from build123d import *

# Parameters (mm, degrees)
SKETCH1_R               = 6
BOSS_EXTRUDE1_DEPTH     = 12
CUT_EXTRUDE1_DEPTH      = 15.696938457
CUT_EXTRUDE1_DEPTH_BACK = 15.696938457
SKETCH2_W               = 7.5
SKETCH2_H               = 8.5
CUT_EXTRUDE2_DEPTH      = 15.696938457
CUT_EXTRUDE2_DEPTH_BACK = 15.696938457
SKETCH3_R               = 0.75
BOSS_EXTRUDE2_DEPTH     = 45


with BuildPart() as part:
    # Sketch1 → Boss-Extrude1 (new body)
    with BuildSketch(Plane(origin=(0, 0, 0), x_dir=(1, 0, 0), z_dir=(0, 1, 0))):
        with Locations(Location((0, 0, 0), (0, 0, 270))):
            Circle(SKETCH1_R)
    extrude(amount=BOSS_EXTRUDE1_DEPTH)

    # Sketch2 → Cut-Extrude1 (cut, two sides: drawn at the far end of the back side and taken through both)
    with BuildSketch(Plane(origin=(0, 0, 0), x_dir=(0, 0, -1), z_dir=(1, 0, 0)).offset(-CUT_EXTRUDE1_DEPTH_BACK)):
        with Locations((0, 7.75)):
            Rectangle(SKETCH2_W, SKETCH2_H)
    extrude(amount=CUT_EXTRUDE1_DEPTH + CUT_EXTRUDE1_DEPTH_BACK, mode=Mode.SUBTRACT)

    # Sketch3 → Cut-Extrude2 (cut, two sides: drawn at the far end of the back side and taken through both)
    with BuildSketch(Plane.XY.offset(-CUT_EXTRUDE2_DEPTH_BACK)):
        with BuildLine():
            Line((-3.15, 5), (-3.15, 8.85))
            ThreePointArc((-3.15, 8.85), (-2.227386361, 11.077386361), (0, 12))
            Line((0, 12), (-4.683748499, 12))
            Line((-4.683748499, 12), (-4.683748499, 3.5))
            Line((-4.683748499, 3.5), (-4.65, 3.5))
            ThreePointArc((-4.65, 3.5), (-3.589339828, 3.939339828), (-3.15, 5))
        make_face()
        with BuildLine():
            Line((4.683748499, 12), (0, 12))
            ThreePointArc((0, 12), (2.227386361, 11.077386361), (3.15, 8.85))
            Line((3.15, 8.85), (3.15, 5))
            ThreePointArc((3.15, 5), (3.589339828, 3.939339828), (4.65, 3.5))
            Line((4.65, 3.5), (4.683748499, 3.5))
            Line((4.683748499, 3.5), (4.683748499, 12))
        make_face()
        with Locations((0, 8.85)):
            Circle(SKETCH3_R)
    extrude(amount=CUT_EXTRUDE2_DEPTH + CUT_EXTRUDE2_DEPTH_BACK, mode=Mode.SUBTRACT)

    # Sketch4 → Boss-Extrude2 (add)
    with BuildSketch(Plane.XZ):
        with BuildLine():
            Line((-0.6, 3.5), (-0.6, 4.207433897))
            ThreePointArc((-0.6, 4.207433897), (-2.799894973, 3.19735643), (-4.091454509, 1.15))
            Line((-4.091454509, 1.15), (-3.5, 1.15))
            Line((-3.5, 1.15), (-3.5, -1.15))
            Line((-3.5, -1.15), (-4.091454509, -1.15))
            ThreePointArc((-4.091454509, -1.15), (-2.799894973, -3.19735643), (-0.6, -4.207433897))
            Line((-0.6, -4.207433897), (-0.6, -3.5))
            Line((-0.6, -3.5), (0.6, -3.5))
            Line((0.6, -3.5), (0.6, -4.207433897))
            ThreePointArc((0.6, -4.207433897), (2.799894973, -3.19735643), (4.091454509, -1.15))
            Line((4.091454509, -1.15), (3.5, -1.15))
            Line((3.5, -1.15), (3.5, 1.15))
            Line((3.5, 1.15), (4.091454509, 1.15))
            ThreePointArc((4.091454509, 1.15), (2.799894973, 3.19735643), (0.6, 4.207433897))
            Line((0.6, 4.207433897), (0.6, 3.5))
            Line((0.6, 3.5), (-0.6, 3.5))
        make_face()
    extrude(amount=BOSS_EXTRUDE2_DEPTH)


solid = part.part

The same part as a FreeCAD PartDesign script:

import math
import FreeCAD as App
import Part
import Sketcher

V = App.Vector

doc = App.newDocument("Part")
body = doc.addObject("PartDesign::Body", "Body")

# Sketch on XZ plane
sketch1 = doc.addObject("Sketcher::SketchObject", "Sketch")
body.addObject(sketch1)
sketch1.AttachmentSupport = (doc.XZ_Plane, [""])
sketch1.MapMode = "FlatFace"
sketch1.addGeometry(Part.Circle(V(0, 0, 0), V(0, 0, 1), 6), False)
sketch1.addConstraint([
    Sketcher.Constraint("Coincident", 0, 3, -1, 1),
    Sketcher.Constraint("Diameter", 0, 12.0),
])
pad1 = doc.addObject("PartDesign::Pad", "Pad")
body.addObject(pad1)
pad1.Profile = sketch1
pad1.Length = 12
pad1.Reversed = True

# Sketch on YZ plane
sketch2 = doc.addObject("Sketcher::SketchObject", "Sketch001")
body.addObject(sketch2)
sketch2.AttachmentSupport = (doc.YZ_Plane, [""])
sketch2.MapMode = "FlatFace"
sketch2.addGeometry([
    Part.LineSegment(V(12, 3.75, 0), V(3.5, 3.75, 0)),
    Part.LineSegment(V(3.5, 3.75, 0), V(3.5, -3.75, 0)),
    Part.LineSegment(V(3.5, -3.75, 0), V(12, -3.75, 0)),
    Part.LineSegment(V(12, -3.75, 0), V(12, 3.75, 0)),
], False)
sketch2.addConstraint([
    Sketcher.Constraint("Coincident", 0, 2, 1, 1),
    Sketcher.Constraint("Coincident", 1, 2, 2, 1),
    Sketcher.Constraint("Coincident", 2, 2, 3, 1),
    Sketcher.Constraint("Coincident", 3, 2, 0, 1),
    Sketcher.Constraint("Horizontal", 0),
    Sketcher.Constraint("Vertical", 1),
    Sketcher.Constraint("Horizontal", 2),
    Sketcher.Constraint("Vertical", 3),
    Sketcher.Constraint("DistanceX", 0, 2, 0, 1, 8.5),
    Sketcher.Constraint("DistanceY", 1, 2, 1, 1, 7.5),
    Sketcher.Constraint("DistanceX", -1, 1, 2, 2, 12.0),
    Sketcher.Constraint("DistanceY", -1, 1, 0, 2, 3.75),
])
pocket1 = doc.addObject("PartDesign::Pocket", "Pocket")
body.addObject(pocket1)
pocket1.Profile = sketch2
pocket1.Type = "ThroughAll"
pocket1.Midplane = True

# Sketch on XY plane
sketch3 = doc.addObject("Sketcher::SketchObject", "Sketch002")
body.addObject(sketch3)
sketch3.AttachmentSupport = (doc.XY_Plane, [""])
sketch3.MapMode = "FlatFace"
sketch3.addGeometry([
    Part.LineSegment(V(-3.15, 5, 0), V(-3.15, 8.85, 0)),  # 0
    Part.ArcOfCircle(Part.Circle(V(0, 8.85, 0), V(0, 0, 1), 3.15), math.radians(90), math.radians(180)),  # 1
    Part.LineSegment(V(0, 12, 0), V(-4.683748, 12, 0)),  # 2
    Part.LineSegment(V(-4.683748, 12, 0), V(-4.683748, 3.5, 0)),  # 3
    Part.LineSegment(V(-4.683748, 3.5, 0), V(-4.65, 3.5, 0)),  # 4
    Part.ArcOfCircle(Part.Circle(V(-4.65, 5, 0), V(0, 0, 1), 1.5), math.radians(-90), math.radians(0)),  # 5
    Part.LineSegment(V(4.683748, 12, 0), V(0, 12, 0)),  # 6
    Part.ArcOfCircle(Part.Circle(V(0, 8.85, 0), V(0, 0, 1), 3.15), math.radians(0), math.radians(90)),  # 7
    Part.LineSegment(V(3.15, 8.85, 0), V(3.15, 5, 0)),  # 8
    Part.ArcOfCircle(Part.Circle(V(4.65, 5, 0), V(0, 0, 1), 1.5), math.radians(180), math.radians(270)),  # 9
    Part.LineSegment(V(4.65, 3.5, 0), V(4.683748, 3.5, 0)),  # 10
    Part.LineSegment(V(4.683748, 3.5, 0), V(4.683748, 12, 0)),  # 11
    Part.Circle(V(0, 8.85, 0), V(0, 0, 1), 0.75),  # 12
], False)
sketch3.addConstraint([
    Sketcher.Constraint("Tangent", 0, 2, 1, 2),
    Sketcher.Constraint("Tangent", 1, 1, 2, 1),
    Sketcher.Constraint("Coincident", 2, 2, 3, 1),
    Sketcher.Constraint("Coincident", 3, 2, 4, 1),
    Sketcher.Constraint("Tangent", 4, 2, 5, 1),
    Sketcher.Constraint("Tangent", 5, 2, 0, 1),
    Sketcher.Constraint("Tangent", 6, 2, 7, 2),
    Sketcher.Constraint("Tangent", 7, 1, 8, 1),
    Sketcher.Constraint("Tangent", 8, 2, 9, 1),
    Sketcher.Constraint("Tangent", 9, 2, 10, 1),
    Sketcher.Constraint("Coincident", 10, 2, 11, 1),
    Sketcher.Constraint("Coincident", 11, 2, 6, 1),
    Sketcher.Constraint("Vertical", 0),
    Sketcher.Constraint("Horizontal", 2),
    Sketcher.Constraint("Vertical", 3),
    Sketcher.Constraint("Horizontal", 4),
    Sketcher.Constraint("Horizontal", 6),
    Sketcher.Constraint("Vertical", 8),
    Sketcher.Constraint("Horizontal", 10),
    Sketcher.Constraint("Vertical", 11),
    Sketcher.Constraint("Coincident", 7, 3, 1, 3),
    Sketcher.Constraint("Coincident", 12, 3, 1, 3),
    Sketcher.Constraint("Equal", 1, 7),
    Sketcher.Constraint("Equal", 5, 9),
    Sketcher.Constraint("Symmetric", 5, 3, 9, 3, -2),
    Sketcher.Constraint("Equal", 2, 6),
    Sketcher.Constraint("Diameter", 12, 1.5),
    Sketcher.Constraint("Radius", 5, 1.5),
    Sketcher.Constraint("Radius", 1, 3.15),
    Sketcher.Constraint("DistanceY", 3, 2, 3, 1, 8.5),
    Sketcher.Constraint("DistanceY", -1, 1, 5, 3, 5.0),
    Sketcher.Constraint("DistanceX", 2, 2, 2, 1, 4.683748),
])
pocket2 = doc.addObject("PartDesign::Pocket", "Pocket001")
body.addObject(pocket2)
pocket2.Profile = sketch3
pocket2.Type = "ThroughAll"
pocket2.Midplane = True

# Sketch on XZ plane
sketch4 = doc.addObject("Sketcher::SketchObject", "Sketch003")
body.addObject(sketch4)
sketch4.AttachmentSupport = (doc.XZ_Plane, [""])
sketch4.MapMode = "FlatFace"
sketch4.addGeometry([
    Part.LineSegment(V(-0.6, 3.5, 0), V(-0.6, 4.207434, 0)),  # 0
    Part.ArcOfCircle(Part.Circle(V(0, 0, 0), V(0, 0, 1), 4.25), math.radians(98.115929), math.radians(164.300727)),  # 1
    Part.LineSegment(V(-4.091455, 1.15, 0), V(-3.5, 1.15, 0)),  # 2
    Part.LineSegment(V(-3.5, 1.15, 0), V(-3.5, -1.15, 0)),  # 3
    Part.LineSegment(V(-3.5, -1.15, 0), V(-4.091455, -1.15, 0)),  # 4
    Part.ArcOfCircle(Part.Circle(V(0, 0, 0), V(0, 0, 1), 4.25), math.radians(-164.300727), math.radians(-98.115929)),  # 5
    Part.LineSegment(V(-0.6, -4.207434, 0), V(-0.6, -3.5, 0)),  # 6
    Part.LineSegment(V(-0.6, -3.5, 0), V(0.6, -3.5, 0)),  # 7
    Part.LineSegment(V(0.6, -3.5, 0), V(0.6, -4.207434, 0)),  # 8
    Part.ArcOfCircle(Part.Circle(V(0, 0, 0), V(0, 0, 1), 4.25), math.radians(-81.884071), math.radians(-15.699273)),  # 9
    Part.LineSegment(V(4.091455, -1.15, 0), V(3.5, -1.15, 0)),  # 10
    Part.LineSegment(V(3.5, -1.15, 0), V(3.5, 1.15, 0)),  # 11
    Part.LineSegment(V(3.5, 1.15, 0), V(4.091455, 1.15, 0)),  # 12
    Part.ArcOfCircle(Part.Circle(V(0, 0, 0), V(0, 0, 1), 4.25), math.radians(15.699273), math.radians(81.884071)),  # 13
    Part.LineSegment(V(0.6, 4.207434, 0), V(0.6, 3.5, 0)),  # 14
    Part.LineSegment(V(0.6, 3.5, 0), V(-0.6, 3.5, 0)),  # 15
], False)
sketch4.addConstraint([
    Sketcher.Constraint("Coincident", 0, 2, 1, 1),
    Sketcher.Constraint("Coincident", 1, 2, 2, 1),
    Sketcher.Constraint("Coincident", 2, 2, 3, 1),
    Sketcher.Constraint("Coincident", 3, 2, 4, 1),
    Sketcher.Constraint("Coincident", 4, 2, 5, 1),
    Sketcher.Constraint("Coincident", 5, 2, 6, 1),
    Sketcher.Constraint("Coincident", 6, 2, 7, 1),
    Sketcher.Constraint("Coincident", 7, 2, 8, 1),
    Sketcher.Constraint("Coincident", 8, 2, 9, 1),
    Sketcher.Constraint("Coincident", 9, 2, 10, 1),
    Sketcher.Constraint("Coincident", 10, 2, 11, 1),
    Sketcher.Constraint("Coincident", 11, 2, 12, 1),
    Sketcher.Constraint("Coincident", 12, 2, 13, 1),
    Sketcher.Constraint("Coincident", 13, 2, 14, 1),
    Sketcher.Constraint("Coincident", 14, 2, 15, 1),
    Sketcher.Constraint("Coincident", 15, 2, 0, 1),
    Sketcher.Constraint("Vertical", 0),
    Sketcher.Constraint("Horizontal", 2),
    Sketcher.Constraint("Vertical", 3),
    Sketcher.Constraint("Horizontal", 4),
    Sketcher.Constraint("Vertical", 6),
    Sketcher.Constraint("Horizontal", 7),
    Sketcher.Constraint("Vertical", 8),
    Sketcher.Constraint("Horizontal", 10),
    Sketcher.Constraint("Vertical", 11),
    Sketcher.Constraint("Horizontal", 12),
    Sketcher.Constraint("Vertical", 14),
    Sketcher.Constraint("Horizontal", 15),
    Sketcher.Constraint("Coincident", 1, 3, -1, 1),
    Sketcher.Constraint("Coincident", 5, 3, -1, 1),
    Sketcher.Constraint("Coincident", 9, 3, -1, 1),
    Sketcher.Constraint("Coincident", 13, 3, -1, 1),
    Sketcher.Constraint("Equal", 1, 5),
    Sketcher.Constraint("Equal", 5, 9),
    Sketcher.Constraint("Equal", 9, 13),
    Sketcher.Constraint("Symmetric", 2, 2, 10, 2, -1, 1),
    Sketcher.Constraint("Symmetric", 6, 2, 14, 2, -1, 1),
    Sketcher.Constraint("Horizontal", 5, 2, 8, 2),
    Sketcher.Constraint("Horizontal", 4, 2, 9, 2),
    Sketcher.Constraint("Horizontal", 2, 2, 11, 2),
    Sketcher.Constraint("Horizontal", 0, 2, 13, 2),
    Sketcher.Constraint("Radius", 1, 4.25),
    Sketcher.Constraint("DistanceX", 7, 1, 7, 2, 1.2),
    Sketcher.Constraint("DistanceY", 3, 2, 3, 1, 2.3),
    Sketcher.Constraint("DistanceX", 2, 2, -1, 1, 3.5),
    Sketcher.Constraint("DistanceY", 6, 2, -1, 1, 3.5),
])
pad2 = doc.addObject("PartDesign::Pad", "Pad001")
body.addObject(pad2)
pad2.Profile = sketch4
pad2.Length = 45

doc.recompute()
